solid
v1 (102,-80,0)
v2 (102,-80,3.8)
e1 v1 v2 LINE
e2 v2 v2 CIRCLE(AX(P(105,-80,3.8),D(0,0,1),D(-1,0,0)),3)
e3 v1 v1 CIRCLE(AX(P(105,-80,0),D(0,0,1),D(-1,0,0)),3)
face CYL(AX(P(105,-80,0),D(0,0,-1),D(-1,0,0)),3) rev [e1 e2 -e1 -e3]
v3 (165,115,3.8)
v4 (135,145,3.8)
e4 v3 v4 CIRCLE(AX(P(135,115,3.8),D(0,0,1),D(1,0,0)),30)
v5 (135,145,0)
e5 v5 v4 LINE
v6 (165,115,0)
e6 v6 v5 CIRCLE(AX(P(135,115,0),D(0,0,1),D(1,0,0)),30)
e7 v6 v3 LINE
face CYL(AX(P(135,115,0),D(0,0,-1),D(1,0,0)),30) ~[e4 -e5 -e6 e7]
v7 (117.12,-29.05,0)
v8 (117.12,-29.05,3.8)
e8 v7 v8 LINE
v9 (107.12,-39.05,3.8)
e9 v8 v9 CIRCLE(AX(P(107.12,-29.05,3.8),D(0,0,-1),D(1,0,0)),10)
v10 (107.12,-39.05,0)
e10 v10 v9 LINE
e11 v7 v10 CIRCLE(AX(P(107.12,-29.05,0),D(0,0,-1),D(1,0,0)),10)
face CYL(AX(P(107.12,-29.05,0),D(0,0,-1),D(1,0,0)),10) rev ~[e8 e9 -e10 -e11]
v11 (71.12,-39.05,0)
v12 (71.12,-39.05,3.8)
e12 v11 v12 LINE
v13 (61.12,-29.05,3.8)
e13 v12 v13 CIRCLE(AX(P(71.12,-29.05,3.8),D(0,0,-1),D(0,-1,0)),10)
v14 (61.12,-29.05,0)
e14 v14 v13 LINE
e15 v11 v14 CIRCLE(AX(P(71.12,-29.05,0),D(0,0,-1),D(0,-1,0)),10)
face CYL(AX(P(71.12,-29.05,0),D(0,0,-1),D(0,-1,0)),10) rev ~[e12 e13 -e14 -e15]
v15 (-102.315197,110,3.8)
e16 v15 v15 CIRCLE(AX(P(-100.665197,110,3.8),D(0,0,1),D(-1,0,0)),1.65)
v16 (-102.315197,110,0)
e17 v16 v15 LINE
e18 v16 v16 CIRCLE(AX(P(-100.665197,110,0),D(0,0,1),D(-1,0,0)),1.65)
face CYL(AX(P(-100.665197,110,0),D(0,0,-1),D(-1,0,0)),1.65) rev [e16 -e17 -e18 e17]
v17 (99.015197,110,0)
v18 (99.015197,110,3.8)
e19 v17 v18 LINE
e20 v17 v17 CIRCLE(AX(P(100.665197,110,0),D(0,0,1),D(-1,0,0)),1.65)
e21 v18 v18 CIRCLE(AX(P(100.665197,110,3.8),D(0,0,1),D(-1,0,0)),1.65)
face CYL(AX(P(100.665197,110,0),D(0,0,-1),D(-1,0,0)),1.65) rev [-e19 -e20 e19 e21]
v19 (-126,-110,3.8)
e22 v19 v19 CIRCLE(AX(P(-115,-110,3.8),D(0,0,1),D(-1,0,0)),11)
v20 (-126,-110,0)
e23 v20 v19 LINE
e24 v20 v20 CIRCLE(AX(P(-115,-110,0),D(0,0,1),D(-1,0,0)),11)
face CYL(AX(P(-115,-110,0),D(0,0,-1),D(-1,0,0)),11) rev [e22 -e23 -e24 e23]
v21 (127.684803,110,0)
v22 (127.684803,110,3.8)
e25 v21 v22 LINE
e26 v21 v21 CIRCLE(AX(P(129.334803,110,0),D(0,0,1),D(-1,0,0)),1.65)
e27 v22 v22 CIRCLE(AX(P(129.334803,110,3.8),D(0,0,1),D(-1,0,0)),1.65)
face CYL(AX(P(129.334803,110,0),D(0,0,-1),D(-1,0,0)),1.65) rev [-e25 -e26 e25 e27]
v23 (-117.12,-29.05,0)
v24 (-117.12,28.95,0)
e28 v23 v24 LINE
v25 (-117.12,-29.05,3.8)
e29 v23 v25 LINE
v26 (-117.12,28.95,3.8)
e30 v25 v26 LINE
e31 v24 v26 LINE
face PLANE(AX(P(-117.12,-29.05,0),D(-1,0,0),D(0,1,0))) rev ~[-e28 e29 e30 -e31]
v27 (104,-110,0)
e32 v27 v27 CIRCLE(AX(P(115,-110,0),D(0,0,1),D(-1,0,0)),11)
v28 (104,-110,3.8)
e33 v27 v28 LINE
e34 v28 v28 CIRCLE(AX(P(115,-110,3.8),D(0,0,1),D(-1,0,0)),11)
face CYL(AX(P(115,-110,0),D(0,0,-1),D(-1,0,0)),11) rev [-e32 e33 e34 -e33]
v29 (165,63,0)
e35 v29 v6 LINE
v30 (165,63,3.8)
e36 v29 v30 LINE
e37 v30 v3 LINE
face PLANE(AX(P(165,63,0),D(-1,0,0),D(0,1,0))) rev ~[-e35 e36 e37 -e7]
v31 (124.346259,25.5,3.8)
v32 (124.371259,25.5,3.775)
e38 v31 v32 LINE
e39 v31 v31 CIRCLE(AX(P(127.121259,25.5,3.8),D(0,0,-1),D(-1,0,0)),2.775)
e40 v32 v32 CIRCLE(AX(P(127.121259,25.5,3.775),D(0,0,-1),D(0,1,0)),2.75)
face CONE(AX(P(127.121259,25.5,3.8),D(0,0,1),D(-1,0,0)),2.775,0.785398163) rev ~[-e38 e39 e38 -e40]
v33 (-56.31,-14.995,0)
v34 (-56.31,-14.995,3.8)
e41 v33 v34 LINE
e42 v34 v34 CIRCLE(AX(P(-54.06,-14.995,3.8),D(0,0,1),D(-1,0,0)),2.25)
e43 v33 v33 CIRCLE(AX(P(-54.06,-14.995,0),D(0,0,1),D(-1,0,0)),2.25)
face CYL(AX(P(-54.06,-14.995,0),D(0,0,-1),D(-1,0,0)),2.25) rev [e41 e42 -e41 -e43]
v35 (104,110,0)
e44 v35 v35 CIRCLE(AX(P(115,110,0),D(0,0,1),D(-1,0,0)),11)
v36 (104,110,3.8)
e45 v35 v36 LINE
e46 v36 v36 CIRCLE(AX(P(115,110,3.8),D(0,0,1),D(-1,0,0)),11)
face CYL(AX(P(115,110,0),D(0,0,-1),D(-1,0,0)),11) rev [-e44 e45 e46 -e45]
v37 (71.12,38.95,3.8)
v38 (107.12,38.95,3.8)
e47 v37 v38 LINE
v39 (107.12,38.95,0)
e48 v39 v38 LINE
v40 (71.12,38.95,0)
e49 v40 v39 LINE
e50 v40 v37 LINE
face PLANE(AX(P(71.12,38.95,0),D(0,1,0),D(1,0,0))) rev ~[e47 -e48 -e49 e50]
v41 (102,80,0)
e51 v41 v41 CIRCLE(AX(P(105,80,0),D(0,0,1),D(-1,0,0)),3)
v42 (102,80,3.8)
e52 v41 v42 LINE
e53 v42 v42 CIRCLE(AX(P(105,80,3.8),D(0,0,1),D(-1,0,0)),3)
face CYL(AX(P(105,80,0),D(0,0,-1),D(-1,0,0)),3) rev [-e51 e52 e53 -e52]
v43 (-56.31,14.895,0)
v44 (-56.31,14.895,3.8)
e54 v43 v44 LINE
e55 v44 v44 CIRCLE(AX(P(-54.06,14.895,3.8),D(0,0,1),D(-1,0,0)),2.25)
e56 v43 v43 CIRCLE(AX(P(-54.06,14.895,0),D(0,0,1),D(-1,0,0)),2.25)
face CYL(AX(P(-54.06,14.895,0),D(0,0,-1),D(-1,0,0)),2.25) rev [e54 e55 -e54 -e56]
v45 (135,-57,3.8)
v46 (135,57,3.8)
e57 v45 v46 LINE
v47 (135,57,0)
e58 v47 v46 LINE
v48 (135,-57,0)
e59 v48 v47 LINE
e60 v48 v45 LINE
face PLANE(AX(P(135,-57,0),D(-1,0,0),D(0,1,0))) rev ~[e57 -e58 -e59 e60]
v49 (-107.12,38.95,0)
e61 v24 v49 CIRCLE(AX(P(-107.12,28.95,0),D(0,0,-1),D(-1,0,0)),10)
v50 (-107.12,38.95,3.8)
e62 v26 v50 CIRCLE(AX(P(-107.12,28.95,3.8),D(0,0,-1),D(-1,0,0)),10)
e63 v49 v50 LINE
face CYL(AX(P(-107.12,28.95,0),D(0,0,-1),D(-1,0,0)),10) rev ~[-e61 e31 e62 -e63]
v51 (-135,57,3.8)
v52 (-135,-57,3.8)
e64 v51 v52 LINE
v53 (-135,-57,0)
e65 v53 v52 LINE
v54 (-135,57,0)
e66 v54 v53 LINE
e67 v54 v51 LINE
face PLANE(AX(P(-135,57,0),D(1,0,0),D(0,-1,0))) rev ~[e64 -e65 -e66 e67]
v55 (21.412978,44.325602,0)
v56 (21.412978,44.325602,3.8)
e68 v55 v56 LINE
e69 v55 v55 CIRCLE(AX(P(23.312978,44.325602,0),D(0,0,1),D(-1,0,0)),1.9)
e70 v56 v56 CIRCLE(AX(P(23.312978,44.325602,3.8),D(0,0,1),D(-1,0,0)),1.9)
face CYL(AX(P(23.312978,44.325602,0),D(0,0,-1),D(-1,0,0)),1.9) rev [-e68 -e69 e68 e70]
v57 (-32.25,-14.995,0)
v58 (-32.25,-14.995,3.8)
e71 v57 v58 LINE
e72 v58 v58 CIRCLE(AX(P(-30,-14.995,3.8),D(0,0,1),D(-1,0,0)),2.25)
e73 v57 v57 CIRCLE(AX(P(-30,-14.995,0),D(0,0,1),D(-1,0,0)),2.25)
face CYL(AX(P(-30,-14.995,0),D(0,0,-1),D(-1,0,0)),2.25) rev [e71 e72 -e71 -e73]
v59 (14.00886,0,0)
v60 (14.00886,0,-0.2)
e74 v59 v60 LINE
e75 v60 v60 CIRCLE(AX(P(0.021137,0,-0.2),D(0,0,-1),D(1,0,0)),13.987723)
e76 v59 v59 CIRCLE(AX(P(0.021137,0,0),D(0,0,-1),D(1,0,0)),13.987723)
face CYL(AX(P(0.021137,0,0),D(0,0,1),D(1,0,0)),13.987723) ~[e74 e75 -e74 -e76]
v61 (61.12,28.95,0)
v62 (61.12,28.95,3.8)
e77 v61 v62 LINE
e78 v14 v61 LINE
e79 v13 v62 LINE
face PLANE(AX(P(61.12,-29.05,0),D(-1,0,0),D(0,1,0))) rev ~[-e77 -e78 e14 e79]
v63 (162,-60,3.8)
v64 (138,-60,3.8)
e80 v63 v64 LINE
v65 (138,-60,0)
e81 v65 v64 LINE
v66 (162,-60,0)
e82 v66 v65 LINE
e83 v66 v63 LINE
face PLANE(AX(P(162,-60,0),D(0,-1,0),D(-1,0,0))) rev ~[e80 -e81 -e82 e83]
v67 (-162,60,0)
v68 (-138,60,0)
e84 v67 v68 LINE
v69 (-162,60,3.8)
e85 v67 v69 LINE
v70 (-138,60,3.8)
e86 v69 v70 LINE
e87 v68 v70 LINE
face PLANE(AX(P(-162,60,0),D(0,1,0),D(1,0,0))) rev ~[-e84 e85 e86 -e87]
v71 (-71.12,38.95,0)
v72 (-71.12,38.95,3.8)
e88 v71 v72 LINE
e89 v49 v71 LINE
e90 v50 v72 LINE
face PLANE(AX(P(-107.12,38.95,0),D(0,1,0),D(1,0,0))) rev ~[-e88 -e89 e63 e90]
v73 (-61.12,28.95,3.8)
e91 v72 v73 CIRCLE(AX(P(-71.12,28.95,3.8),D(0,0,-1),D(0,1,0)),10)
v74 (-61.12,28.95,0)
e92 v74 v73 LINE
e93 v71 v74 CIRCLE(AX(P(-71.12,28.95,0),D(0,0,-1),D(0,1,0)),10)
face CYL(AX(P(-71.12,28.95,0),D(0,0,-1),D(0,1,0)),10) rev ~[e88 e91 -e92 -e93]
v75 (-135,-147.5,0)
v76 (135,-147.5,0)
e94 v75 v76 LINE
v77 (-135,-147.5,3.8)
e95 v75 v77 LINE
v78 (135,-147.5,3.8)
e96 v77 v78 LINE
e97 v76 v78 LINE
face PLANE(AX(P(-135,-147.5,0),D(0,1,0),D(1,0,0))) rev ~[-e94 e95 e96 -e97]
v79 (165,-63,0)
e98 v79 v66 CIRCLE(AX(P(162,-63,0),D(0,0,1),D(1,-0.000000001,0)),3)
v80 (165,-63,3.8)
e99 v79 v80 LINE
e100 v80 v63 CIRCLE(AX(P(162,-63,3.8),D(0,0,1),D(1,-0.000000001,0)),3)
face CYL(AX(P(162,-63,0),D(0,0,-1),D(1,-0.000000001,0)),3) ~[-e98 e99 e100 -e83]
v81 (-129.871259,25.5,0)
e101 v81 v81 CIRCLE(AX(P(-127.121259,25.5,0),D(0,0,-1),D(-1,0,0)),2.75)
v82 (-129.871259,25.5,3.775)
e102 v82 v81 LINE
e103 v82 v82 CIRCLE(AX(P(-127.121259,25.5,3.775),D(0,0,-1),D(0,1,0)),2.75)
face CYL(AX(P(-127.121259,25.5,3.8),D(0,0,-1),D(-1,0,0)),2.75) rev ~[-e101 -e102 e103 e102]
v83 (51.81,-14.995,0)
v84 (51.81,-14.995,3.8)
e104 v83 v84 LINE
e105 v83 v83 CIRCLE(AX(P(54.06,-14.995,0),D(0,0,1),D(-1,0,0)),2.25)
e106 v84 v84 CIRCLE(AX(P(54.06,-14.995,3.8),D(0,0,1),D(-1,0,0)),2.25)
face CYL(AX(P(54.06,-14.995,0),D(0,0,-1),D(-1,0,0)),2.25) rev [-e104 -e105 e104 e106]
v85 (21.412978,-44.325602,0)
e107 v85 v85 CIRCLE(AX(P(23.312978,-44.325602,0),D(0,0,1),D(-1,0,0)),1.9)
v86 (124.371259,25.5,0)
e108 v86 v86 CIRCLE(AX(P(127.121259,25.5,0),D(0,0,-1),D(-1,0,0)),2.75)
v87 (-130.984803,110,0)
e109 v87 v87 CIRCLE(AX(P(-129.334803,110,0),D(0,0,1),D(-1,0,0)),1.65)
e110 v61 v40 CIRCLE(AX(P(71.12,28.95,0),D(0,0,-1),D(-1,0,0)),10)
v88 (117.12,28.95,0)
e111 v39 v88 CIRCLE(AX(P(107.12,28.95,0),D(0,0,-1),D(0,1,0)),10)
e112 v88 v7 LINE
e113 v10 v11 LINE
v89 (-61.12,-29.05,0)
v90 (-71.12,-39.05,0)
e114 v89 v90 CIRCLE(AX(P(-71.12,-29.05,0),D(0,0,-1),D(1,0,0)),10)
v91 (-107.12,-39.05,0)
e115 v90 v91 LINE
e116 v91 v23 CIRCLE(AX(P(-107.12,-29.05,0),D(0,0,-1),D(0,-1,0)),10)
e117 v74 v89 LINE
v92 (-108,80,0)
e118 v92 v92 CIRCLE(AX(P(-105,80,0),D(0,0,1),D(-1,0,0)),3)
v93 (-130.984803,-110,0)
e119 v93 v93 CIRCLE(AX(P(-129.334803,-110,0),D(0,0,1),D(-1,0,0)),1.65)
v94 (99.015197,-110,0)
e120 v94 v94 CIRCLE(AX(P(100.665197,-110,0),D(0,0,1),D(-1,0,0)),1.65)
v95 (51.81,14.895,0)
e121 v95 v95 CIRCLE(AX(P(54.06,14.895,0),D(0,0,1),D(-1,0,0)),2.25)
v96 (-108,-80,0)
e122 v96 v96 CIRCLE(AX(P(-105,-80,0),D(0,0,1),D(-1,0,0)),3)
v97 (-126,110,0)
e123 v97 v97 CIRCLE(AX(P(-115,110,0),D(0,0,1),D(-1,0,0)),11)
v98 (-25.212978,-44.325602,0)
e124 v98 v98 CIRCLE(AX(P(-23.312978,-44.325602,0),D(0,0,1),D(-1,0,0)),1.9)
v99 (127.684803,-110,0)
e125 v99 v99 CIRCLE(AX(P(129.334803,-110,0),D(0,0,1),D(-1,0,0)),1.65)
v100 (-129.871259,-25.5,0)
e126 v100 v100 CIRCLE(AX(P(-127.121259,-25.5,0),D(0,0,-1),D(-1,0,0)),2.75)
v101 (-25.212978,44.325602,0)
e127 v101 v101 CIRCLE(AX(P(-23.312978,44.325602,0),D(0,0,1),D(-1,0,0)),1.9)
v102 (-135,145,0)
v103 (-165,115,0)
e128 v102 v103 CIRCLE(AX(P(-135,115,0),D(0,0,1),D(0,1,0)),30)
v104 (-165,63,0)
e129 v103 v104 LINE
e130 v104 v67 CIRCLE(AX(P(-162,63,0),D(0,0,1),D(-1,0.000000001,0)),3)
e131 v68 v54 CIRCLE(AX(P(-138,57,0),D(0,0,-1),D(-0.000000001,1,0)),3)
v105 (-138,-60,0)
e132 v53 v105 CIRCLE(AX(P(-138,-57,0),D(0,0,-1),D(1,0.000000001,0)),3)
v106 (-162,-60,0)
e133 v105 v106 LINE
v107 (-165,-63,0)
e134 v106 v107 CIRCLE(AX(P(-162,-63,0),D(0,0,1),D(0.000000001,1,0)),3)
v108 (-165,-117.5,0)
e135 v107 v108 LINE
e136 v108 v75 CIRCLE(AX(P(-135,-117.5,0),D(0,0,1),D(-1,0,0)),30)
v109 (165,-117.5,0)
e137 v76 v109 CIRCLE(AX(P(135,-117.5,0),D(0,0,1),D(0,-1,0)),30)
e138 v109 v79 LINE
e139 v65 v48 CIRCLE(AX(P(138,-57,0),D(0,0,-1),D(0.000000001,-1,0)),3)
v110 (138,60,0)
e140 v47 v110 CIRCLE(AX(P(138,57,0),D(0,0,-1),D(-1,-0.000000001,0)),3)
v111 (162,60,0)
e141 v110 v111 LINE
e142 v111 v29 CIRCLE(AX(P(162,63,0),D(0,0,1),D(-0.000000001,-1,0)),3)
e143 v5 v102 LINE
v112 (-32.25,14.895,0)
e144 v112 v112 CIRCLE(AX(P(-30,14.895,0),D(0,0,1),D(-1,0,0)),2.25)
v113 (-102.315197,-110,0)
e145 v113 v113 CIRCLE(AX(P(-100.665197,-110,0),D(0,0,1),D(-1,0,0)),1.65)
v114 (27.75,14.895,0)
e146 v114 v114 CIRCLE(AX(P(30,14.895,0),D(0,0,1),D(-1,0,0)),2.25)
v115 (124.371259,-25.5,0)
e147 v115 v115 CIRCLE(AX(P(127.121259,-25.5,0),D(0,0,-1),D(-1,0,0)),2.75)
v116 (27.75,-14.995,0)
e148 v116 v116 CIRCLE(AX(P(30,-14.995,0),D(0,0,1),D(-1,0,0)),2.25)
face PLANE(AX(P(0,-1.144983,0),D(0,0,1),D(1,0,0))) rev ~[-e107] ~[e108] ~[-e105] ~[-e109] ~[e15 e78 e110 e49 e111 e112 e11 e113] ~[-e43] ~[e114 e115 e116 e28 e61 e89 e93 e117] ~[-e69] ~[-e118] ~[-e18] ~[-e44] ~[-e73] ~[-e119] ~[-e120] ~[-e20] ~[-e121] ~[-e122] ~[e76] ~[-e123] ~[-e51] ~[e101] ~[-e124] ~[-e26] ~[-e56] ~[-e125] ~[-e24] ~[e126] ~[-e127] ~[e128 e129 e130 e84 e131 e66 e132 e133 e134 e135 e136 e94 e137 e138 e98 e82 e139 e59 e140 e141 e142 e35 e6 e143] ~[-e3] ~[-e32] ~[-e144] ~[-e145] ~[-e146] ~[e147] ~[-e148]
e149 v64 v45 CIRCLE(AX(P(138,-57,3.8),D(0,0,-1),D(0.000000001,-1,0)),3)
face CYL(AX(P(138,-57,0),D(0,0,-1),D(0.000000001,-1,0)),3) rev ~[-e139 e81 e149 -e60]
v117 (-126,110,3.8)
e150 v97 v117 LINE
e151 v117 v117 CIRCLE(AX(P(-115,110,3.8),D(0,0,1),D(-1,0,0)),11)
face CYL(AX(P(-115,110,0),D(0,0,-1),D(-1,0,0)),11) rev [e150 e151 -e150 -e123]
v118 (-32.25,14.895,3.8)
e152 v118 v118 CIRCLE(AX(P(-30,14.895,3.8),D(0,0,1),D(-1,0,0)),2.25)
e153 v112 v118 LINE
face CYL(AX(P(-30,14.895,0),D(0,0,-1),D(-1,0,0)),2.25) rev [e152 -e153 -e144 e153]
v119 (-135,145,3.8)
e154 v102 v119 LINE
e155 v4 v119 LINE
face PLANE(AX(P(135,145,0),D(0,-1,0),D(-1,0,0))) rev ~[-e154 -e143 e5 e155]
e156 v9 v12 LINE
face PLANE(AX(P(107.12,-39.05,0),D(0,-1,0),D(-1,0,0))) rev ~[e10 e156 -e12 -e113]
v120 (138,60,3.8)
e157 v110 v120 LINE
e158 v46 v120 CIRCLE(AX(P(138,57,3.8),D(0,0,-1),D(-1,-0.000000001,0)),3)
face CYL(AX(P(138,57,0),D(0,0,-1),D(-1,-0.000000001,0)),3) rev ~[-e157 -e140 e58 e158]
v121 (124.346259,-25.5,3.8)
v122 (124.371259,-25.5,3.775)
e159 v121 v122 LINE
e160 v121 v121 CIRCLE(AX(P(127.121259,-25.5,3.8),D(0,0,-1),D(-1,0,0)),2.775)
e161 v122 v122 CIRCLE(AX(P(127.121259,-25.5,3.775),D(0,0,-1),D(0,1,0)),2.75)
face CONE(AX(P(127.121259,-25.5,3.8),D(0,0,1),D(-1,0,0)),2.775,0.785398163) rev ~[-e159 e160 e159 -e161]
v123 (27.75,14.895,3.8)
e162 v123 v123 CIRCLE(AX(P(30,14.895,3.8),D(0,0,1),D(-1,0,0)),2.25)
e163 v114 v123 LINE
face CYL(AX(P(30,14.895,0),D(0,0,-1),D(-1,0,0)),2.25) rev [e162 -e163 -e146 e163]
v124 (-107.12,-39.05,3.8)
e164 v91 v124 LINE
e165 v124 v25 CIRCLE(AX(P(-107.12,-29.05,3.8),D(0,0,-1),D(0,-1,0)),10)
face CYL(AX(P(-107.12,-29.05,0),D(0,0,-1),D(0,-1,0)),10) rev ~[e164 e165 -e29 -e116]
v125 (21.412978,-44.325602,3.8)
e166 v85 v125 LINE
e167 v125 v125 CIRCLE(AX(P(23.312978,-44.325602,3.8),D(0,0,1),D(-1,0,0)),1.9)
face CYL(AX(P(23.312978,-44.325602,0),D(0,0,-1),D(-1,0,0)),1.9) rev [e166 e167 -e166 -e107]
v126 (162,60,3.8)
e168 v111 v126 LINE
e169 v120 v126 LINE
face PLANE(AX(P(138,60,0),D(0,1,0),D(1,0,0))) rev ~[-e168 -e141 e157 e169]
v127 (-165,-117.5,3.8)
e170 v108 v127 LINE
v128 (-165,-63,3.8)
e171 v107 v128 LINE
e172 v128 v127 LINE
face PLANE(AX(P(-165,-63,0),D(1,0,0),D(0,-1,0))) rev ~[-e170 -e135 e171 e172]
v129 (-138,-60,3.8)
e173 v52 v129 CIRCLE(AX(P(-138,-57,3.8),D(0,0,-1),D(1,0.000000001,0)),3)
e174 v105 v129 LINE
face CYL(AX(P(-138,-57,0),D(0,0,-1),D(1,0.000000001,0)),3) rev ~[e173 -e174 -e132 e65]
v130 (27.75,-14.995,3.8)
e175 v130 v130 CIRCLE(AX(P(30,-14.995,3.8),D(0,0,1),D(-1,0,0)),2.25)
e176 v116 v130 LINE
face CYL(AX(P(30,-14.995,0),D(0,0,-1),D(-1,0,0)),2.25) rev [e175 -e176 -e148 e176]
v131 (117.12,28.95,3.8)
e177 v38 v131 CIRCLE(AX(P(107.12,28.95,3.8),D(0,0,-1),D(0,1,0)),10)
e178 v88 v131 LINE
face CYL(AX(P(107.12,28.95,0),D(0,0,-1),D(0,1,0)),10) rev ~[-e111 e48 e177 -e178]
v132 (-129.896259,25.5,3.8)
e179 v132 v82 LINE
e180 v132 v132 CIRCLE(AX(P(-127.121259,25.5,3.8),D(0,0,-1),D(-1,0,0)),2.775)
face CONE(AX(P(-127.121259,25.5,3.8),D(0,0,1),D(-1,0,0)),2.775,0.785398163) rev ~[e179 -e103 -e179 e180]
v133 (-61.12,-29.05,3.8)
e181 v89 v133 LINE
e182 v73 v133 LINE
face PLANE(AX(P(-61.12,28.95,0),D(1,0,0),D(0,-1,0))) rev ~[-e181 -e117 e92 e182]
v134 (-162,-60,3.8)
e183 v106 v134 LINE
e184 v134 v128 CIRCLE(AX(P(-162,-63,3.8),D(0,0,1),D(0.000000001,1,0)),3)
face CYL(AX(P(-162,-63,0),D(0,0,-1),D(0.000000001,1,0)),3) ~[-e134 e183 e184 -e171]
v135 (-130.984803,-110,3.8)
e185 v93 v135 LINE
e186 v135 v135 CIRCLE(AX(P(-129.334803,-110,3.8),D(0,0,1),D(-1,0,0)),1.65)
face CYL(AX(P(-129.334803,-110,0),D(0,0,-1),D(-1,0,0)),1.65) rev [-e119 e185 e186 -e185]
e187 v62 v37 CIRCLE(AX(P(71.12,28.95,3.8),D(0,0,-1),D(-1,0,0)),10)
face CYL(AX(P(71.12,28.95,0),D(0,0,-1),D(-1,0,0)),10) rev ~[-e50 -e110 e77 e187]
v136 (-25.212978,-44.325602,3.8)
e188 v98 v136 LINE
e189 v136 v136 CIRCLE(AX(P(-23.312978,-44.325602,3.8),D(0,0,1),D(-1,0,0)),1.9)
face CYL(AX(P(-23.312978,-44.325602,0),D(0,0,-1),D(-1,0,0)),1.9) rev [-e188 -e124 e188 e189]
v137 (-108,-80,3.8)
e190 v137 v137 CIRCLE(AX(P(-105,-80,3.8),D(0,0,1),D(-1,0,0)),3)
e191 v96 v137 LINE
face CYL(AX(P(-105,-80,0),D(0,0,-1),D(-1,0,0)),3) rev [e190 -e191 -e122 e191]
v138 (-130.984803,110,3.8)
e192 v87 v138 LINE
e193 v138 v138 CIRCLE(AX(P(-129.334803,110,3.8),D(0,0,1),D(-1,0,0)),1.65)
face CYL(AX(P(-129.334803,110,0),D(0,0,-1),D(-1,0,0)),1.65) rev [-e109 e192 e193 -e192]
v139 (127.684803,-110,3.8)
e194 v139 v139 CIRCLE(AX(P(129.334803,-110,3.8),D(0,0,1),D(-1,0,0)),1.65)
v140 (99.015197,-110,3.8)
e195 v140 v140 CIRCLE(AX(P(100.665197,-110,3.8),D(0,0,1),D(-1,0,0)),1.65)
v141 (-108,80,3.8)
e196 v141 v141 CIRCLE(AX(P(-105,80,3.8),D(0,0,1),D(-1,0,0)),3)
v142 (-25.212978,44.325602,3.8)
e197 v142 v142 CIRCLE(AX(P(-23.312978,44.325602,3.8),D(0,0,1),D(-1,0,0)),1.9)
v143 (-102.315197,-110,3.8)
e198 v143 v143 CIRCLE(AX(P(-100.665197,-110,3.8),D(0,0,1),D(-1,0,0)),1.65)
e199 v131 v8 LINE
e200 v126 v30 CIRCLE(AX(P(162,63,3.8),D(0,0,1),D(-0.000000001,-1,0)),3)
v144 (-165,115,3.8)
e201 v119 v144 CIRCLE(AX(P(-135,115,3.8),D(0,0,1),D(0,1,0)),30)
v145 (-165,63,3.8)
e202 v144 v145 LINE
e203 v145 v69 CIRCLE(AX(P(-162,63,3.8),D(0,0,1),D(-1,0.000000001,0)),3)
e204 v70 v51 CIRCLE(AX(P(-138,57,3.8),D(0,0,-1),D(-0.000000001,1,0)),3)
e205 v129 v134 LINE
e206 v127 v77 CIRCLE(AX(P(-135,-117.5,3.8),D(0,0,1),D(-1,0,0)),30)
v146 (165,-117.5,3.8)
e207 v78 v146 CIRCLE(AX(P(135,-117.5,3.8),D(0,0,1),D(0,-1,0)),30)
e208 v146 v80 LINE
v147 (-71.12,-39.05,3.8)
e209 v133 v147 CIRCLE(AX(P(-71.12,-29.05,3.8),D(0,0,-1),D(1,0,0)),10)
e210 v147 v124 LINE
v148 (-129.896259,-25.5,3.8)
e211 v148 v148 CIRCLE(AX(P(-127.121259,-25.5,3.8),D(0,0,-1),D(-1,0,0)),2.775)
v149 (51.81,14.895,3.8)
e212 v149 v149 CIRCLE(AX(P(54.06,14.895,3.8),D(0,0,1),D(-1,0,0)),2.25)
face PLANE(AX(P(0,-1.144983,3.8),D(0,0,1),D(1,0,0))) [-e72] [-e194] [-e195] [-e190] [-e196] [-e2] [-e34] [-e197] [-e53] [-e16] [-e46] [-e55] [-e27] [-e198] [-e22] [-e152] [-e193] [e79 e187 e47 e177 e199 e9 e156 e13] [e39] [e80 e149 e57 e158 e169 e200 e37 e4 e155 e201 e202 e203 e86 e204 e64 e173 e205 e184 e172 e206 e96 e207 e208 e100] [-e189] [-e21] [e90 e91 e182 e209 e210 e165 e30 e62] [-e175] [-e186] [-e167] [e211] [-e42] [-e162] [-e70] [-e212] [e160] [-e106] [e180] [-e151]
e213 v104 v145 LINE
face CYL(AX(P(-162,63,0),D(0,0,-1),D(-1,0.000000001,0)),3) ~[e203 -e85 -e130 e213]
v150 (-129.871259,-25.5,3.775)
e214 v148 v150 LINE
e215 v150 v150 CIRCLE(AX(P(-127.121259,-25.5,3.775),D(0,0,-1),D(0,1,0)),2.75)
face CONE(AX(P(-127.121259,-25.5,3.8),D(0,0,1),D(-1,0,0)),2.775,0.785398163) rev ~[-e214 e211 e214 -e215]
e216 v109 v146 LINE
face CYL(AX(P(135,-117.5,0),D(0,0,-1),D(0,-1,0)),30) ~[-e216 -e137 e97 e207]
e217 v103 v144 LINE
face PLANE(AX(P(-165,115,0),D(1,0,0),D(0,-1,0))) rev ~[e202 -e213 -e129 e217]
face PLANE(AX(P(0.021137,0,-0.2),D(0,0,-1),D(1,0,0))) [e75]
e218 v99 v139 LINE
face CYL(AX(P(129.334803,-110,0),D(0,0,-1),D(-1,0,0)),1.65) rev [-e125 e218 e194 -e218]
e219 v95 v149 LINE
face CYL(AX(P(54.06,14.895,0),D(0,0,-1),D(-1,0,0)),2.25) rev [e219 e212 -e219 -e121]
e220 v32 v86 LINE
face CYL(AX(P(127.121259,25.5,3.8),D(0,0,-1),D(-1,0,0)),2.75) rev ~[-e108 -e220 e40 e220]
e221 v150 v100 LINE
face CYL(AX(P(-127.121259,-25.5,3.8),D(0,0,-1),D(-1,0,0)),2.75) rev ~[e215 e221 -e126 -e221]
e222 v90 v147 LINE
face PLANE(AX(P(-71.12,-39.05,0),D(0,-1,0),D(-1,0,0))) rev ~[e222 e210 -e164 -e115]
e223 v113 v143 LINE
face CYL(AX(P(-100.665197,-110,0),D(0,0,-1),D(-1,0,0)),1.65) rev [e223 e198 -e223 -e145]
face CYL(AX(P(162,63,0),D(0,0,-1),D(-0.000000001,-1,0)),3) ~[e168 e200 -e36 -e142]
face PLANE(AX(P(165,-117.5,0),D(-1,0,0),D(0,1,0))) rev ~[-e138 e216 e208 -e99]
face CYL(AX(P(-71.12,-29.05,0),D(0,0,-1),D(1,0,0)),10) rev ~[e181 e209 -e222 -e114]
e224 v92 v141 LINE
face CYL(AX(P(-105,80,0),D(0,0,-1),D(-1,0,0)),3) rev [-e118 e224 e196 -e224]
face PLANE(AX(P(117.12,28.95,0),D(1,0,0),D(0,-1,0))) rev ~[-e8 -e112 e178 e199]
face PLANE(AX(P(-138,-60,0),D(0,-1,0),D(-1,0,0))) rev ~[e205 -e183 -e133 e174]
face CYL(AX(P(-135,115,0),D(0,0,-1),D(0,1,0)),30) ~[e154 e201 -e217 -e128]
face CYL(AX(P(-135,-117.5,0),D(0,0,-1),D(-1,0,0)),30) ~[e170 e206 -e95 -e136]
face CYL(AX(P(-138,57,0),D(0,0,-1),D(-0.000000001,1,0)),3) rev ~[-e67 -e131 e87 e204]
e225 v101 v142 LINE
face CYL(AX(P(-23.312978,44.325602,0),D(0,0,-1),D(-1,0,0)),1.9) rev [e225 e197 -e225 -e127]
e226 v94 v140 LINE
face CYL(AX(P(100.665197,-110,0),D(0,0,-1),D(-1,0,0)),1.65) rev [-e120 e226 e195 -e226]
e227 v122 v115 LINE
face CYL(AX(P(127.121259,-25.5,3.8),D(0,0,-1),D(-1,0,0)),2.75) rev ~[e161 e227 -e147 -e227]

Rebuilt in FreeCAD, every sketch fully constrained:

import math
import FreeCAD as App
import Part
import Sketcher
from FreeCAD import Vector
Q = App.Units.Quantity

doc = App.newDocument("Part")
body = doc.addObject("PartDesign::Body", "Body")

# Sketch on XY plane
sketch1 = body.newObject("Sketcher::SketchObject", "Sketch")
sketch1.AttachmentSupport = (doc.getObject("XY_Plane"), [""])
sketch1.MapMode = "FlatFace"
sketch1.addGeometry(Part.LineSegment(Vector(165, 63, 0), Vector(165, 115, 0)), False)
sketch1.addGeometry(Part.ArcOfCircle(Part.Circle(Vector(135, 115, 0), Vector(0, 0, 1), 30), math.radians(0), math.radians(90)), False)
sketch1.addGeometry(Part.LineSegment(Vector(135, 145, 0), Vector(-135, 145, 0)), False)
sketch1.addGeometry(Part.ArcOfCircle(Part.Circle(Vector(-135, 115, 0), Vector(0, 0, 1), 30), math.radians(90), math.radians(180)), False)
sketch1.addGeometry(Part.LineSegment(Vector(-165, 115, 0), Vector(-165, 63, 0)), False)
sketch1.addGeometry(Part.ArcOfCircle(Part.Circle(Vector(-162, 63, 0), Vector(0, 0, 1), 3), math.radians(180), math.radians(270)), False)
sketch1.addGeometry(Part.LineSegment(Vector(-162, 60, 0), Vector(-138, 60, 0)), False)
sketch1.addGeometry(Part.ArcOfCircle(Part.Circle(Vector(-138, 57, 0), Vector(0, 0, 1), 3), math.radians(0), math.radians(90)), False)
sketch1.addGeometry(Part.LineSegment(Vector(-135, 57, 0), Vector(-135, -57, 0)), False)
sketch1.addGeometry(Part.ArcOfCircle(Part.Circle(Vector(-138, -57, 0), Vector(0, 0, 1), 3), math.radians(-90), math.radians(0)), False)
sketch1.addGeometry(Part.LineSegment(Vector(-138, -60, 0), Vector(-162, -60, 0)), False)
sketch1.addGeometry(Part.ArcOfCircle(Part.Circle(Vector(-162, -63, 0), Vector(0, 0, 1), 3), math.radians(90), math.radians(180)), False)
sketch1.addGeometry(Part.LineSegment(Vector(-165, -63, 0), Vector(-165, -117.5, 0)), False)
sketch1.addGeometry(Part.ArcOfCircle(Part.Circle(Vector(-135, -117.5, 0), Vector(0, 0, 1), 30), math.radians(180), math.radians(270)), False)
sketch1.addGeometry(Part.LineSegment(Vector(-135, -147.5, 0), Vector(135, -147.5, 0)), False)
sketch1.addGeometry(Part.ArcOfCircle(Part.Circle(Vector(135, -117.5, 0), Vector(0, 0, 1), 30), math.radians(-90), math.radians(0)), False)
sketch1.addGeometry(Part.LineSegment(Vector(165, -117.5, 0), Vector(165, -63, 0)), False)
sketch1.addGeometry(Part.ArcOfCircle(Part.Circle(Vector(162, -63, 0), Vector(0, 0, 1), 3), math.radians(0), math.radians(90)), False)
sketch1.addGeometry(Part.LineSegment(Vector(162, -60, 0), Vector(138, -60, 0)), False)
sketch1.addGeometry(Part.ArcOfCircle(Part.Circle(Vector(138, -57, 0), Vector(0, 0, 1), 3), math.radians(180), math.radians(270)), False)
sketch1.addGeometry(Part.LineSegment(Vector(135, -57, 0), Vector(135, 57, 0)), False)
sketch1.addGeometry(Part.ArcOfCircle(Part.Circle(Vector(138, 57, 0), Vector(0, 0, 1), 3), math.radians(90), math.radians(180)), False)
sketch1.addGeometry(Part.LineSegment(Vector(138, 60, 0), Vector(162, 60, 0)), False)
sketch1.addGeometry(Part.ArcOfCircle(Part.Circle(Vector(162, 63, 0), Vector(0, 0, 1), 3), math.radians(-90), math.radians(0)), False)
sketch1.addGeometry(Part.Circle(Vector(-129.334803, -110, 0), Vector(0, 0, 1), 1.65), False)
sketch1.addGeometry(Part.Circle(Vector(-115, -110, 0), Vector(0, 0, 1), 11), False)
sketch1.addGeometry(Part.Circle(Vector(-100.665197, -110, 0), Vector(0, 0, 1), 1.65), False)
sketch1.addGeometry(Part.Circle(Vector(-105, -80, 0), Vector(0, 0, 1), 3), False)
sketch1.addGeometry(Part.Circle(Vector(-127.121259, -25.5, 0), Vector(0, 0, 1), 1.65), False)
sketch1.addGeometry(Part.LineSegment(Vector(-117.12, -29.05, 0), Vector(-117.12, 28.95, 0)), False)
sketch1.addGeometry(Part.ArcOfCircle(Part.Circle(Vector(-107.12, 28.95, 0), Vector(0, 0, 1), 10), math.radians(90), math.radians(180)), False)
sketch1.addGeometry(Part.LineSegment(Vector(-107.12, 38.95, 0), Vector(-71.12, 38.95, 0)), False)
sketch1.addGeometry(Part.ArcOfCircle(Part.Circle(Vector(-71.12, 28.95, 0), Vector(0, 0, 1), 10), math.radians(0), math.radians(90)), False)
sketch1.addGeometry(Part.LineSegment(Vector(-61.12, 28.95, 0), Vector(-61.12, -29.05, 0)), False)
sketch1.addGeometry(Part.ArcOfCircle(Part.Circle(Vector(-71.12, -29.05, 0), Vector(0, 0, 1), 10), math.radians(-90), math.radians(0)), False)
sketch1.addGeometry(Part.LineSegment(Vector(-71.12, -39.05, 0), Vector(-107.12, -39.05, 0)), False)
sketch1.addGeometry(Part.ArcOfCircle(Part.Circle(Vector(-107.12, -29.05, 0), Vector(0, 0, 1), 10), math.radians(180), math.radians(270)), False)
sketch1.addGeometry(Part.Circle(Vector(-23.312978, -44.325602, 0), Vector(0, 0, 1), 1.9), False)
sketch1.addGeometry(Part.Circle(Vector(-54.06, -14.995, 0), Vector(0, 0, 1), 2.25), False)
sketch1.addGeometry(Part.Circle(Vector(-30, -14.995, 0), Vector(0, 0, 1), 2.25), False)
sketch1.addGeometry(Part.Circle(Vector(100.665197, -110, 0), Vector(0, 0, 1), 1.65), False)
sketch1.addGeometry(Part.Circle(Vector(115, -110, 0), Vector(0, 0, 1), 11), False)
sketch1.addGeometry(Part.Circle(Vector(129.334803, -110, 0), Vector(0, 0, 1), 1.65), False)
sketch1.addGeometry(Part.Circle(Vector(105, -80, 0), Vector(0, 0, 1), 3), False)
sketch1.addGeometry(Part.Circle(Vector(23.312978, -44.325602, 0), Vector(0, 0, 1), 1.9), False)
sketch1.addGeometry(Part.Circle(Vector(30, -14.995, 0), Vector(0, 0, 1), 2.25), False)
sketch1.addGeometry(Part.Circle(Vector(54.06, -14.995, 0), Vector(0, 0, 1), 2.25), False)
sketch1.addGeometry(Part.ArcOfCircle(Part.Circle(Vector(71.12, -29.05, 0), Vector(0, 0, 1), 10), math.radians(180), math.radians(270)), False)
sketch1.addGeometry(Part.LineSegment(Vector(61.12, -29.05, 0), Vector(61.12, 28.95, 0)), False)
sketch1.addGeometry(Part.ArcOfCircle(Part.Circle(Vector(71.12, 28.95, 0), Vector(0, 0, 1), 10), math.radians(90), math.radians(180)), False)
sketch1.addGeometry(Part.LineSegment(Vector(71.12, 38.95, 0), Vector(107.12, 38.95, 0)), False)
sketch1.addGeometry(Part.ArcOfCircle(Part.Circle(Vector(107.12, 28.95, 0), Vector(0, 0, 1), 10), math.radians(0), math.radians(90)), False)
sketch1.addGeometry(Part.LineSegment(Vector(117.12, 28.95, 0), Vector(117.12, -29.05, 0)), False)
sketch1.addGeometry(Part.ArcOfCircle(Part.Circle(Vector(107.12, -29.05, 0), Vector(0, 0, 1), 10), math.radians(-90), math.radians(0)), False)
sketch1.addGeometry(Part.LineSegment(Vector(107.12, -39.05, 0), Vector(71.12, -39.05, 0)), False)
sketch1.addGeometry(Part.Circle(Vector(127.121259, -25.5, 0), Vector(0, 0, 1), 1.65), False)
sketch1.addGeometry(Part.Circle(Vector(-127.121259, 25.5, 0), Vector(0, 0, 1), 1.65), False)
sketch1.addGeometry(Part.Circle(Vector(-54.06, 14.895, 0), Vector(0, 0, 1), 2.25), False)
sketch1.addGeometry(Part.Circle(Vector(-30, 14.895, 0), Vector(0, 0, 1), 2.25), False)
sketch1.addGeometry(Part.Circle(Vector(-23.312978, 44.325602, 0), Vector(0, 0, 1), 1.9), False)
sketch1.addGeometry(Part.Circle(Vector(-105, 80, 0), Vector(0, 0, 1), 3), False)
sketch1.addGeometry(Part.Circle(Vector(-129.334803, 110, 0), Vector(0, 0, 1), 1.65), False)
sketch1.addGeometry(Part.Circle(Vector(-115, 110, 0), Vector(0, 0, 1), 11), False)
sketch1.addGeometry(Part.Circle(Vector(-100.665197, 110, 0), Vector(0, 0, 1), 1.65), False)
sketch1.addGeometry(Part.Circle(Vector(30, 14.895, 0), Vector(0, 0, 1), 2.25), False)
sketch1.addGeometry(Part.Circle(Vector(54.06, 14.895, 0), Vector(0, 0, 1), 2.25), False)
sketch1.addGeometry(Part.Circle(Vector(23.312978, 44.325602, 0), Vector(0, 0, 1), 1.9), False)
sketch1.addGeometry(Part.Circle(Vector(127.121259, 25.5, 0), Vector(0, 0, 1), 1.65), False)
sketch1.addGeometry(Part.Circle(Vector(105, 80, 0), Vector(0, 0, 1), 3), False)
sketch1.addGeometry(Part.Circle(Vector(100.665197, 110, 0), Vector(0, 0, 1), 1.65), False)
sketch1.addGeometry(Part.Circle(Vector(115, 110, 0), Vector(0, 0, 1), 11), False)
sketch1.addGeometry(Part.Circle(Vector(129.334803, 110, 0), Vector(0, 0, 1), 1.65), False)
sketch1.addConstraint(Sketcher.Constraint("Tangent", 0, 2, 1, 1))
sketch1.addConstraint(Sketcher.Constraint("Tangent", 1, 2, 2, 1))
sketch1.addConstraint(Sketcher.Constraint("Tangent", 2, 2, 3, 1))
sketch1.addConstraint(Sketcher.Constraint("Tangent", 3, 2, 4, 1))
sketch1.addConstraint(Sketcher.Constraint("Tangent", 4, 2, 5, 1))
sketch1.addConstraint(Sketcher.Constraint("Tangent", 5, 2, 6, 1))
sketch1.addConstraint(Sketcher.Constraint("Tangent", 6, 2, 7, 2))
sketch1.addConstraint(Sketcher.Constraint("Tangent", 7, 1, 8, 1))
sketch1.addConstraint(Sketcher.Constraint("Tangent", 8, 2, 9, 2))
sketch1.addConstraint(Sketcher.Constraint("Tangent", 9, 1, 10, 1))
sketch1.addConstraint(Sketcher.Constraint("Tangent", 10, 2, 11, 1))
sketch1.addConstraint(Sketcher.Constraint("Tangent", 11, 2, 12, 1))
sketch1.addConstraint(Sketcher.Constraint("Tangent", 12, 2, 13, 1))
sketch1.addConstraint(Sketcher.Constraint("Tangent", 13, 2, 14, 1))
sketch1.addConstraint(Sketcher.Constraint("Tangent", 14, 2, 15, 1))
sketch1.addConstraint(Sketcher.Constraint("Tangent", 15, 2, 16, 1))
sketch1.addConstraint(Sketcher.Constraint("Tangent", 16, 2, 17, 1))
sketch1.addConstraint(Sketcher.Constraint("Tangent", 17, 2, 18, 1))
sketch1.addConstraint(Sketcher.Constraint("Tangent", 18, 2, 19, 2))
sketch1.addConstraint(Sketcher.Constraint("Tangent", 19, 1, 20, 1))
sketch1.addConstraint(Sketcher.Constraint("Tangent", 20, 2, 21, 2))
sketch1.addConstraint(Sketcher.Constraint("Tangent", 21, 1, 22, 1))
sketch1.addConstraint(Sketcher.Constraint("Tangent", 22, 2, 23, 1))
sketch1.addConstraint(Sketcher.Constraint("Tangent", 23, 2, 0, 1))
sketch1.addConstraint(Sketcher.Constraint("Tangent", 29, 2, 30, 2))
sketch1.addConstraint(Sketcher.Constraint("Tangent", 30, 1, 31, 1))
sketch1.addConstraint(Sketcher.Constraint("Tangent", 31, 2, 32, 2))
sketch1.addConstraint(Sketcher.Constraint("Tangent", 32, 1, 33, 1))
sketch1.addConstraint(Sketcher.Constraint("Tangent", 33, 2, 34, 2))
sketch1.addConstraint(Sketcher.Constraint("Tangent", 34, 1, 35, 1))
sketch1.addConstraint(Sketcher.Constraint("Tangent", 35, 2, 36, 2))
sketch1.addConstraint(Sketcher.Constraint("Tangent", 36, 1, 29, 1))
sketch1.addConstraint(Sketcher.Constraint("Tangent", 47, 1, 48, 1))
sketch1.addConstraint(Sketcher.Constraint("Tangent", 48, 2, 49, 2))
sketch1.addConstraint(Sketcher.Constraint("Tangent", 49, 1, 50, 1))
sketch1.addConstraint(Sketcher.Constraint("Tangent", 50, 2, 51, 2))
sketch1.addConstraint(Sketcher.Constraint("Tangent", 51, 1, 52, 1))
sketch1.addConstraint(Sketcher.Constraint("Tangent", 52, 2, 53, 2))
sketch1.addConstraint(Sketcher.Constraint("Tangent", 53, 1, 54, 1))
sketch1.addConstraint(Sketcher.Constraint("Tangent", 54, 2, 47, 2))
sketch1.addConstraint(Sketcher.Constraint("Vertical", 0))
sketch1.addConstraint(Sketcher.Constraint("Horizontal", 2))
sketch1.addConstraint(Sketcher.Constraint("Vertical", 4))
sketch1.addConstraint(Sketcher.Constraint("Horizontal", 6))
sketch1.addConstraint(Sketcher.Constraint("Vertical", 8))
sketch1.addConstraint(Sketcher.Constraint("Horizontal", 10))
sketch1.addConstraint(Sketcher.Constraint("Vertical", 12))
sketch1.addConstraint(Sketcher.Constraint("Horizontal", 14))
sketch1.addConstraint(Sketcher.Constraint("Vertical", 16))
sketch1.addConstraint(Sketcher.Constraint("Horizontal", 18))
sketch1.addConstraint(Sketcher.Constraint("Vertical", 20))
sketch1.addConstraint(Sketcher.Constraint("Horizontal", 22))
sketch1.addConstraint(Sketcher.Constraint("Vertical", 29))
sketch1.addConstraint(Sketcher.Constraint("Horizontal", 31))
sketch1.addConstraint(Sketcher.Constraint("Vertical", 33))
sketch1.addConstraint(Sketcher.Constraint("Horizontal", 35))
sketch1.addConstraint(Sketcher.Constraint("Vertical", 48))
sketch1.addConstraint(Sketcher.Constraint("Horizontal", 50))
sketch1.addConstraint(Sketcher.Constraint("Vertical", 52))
sketch1.addConstraint(Sketcher.Constraint("Horizontal", 54))
sketch1.addConstraint(Sketcher.Constraint("Equal", 1, 3))
sketch1.addConstraint(Sketcher.Constraint("Equal", 5, 7))
sketch1.addConstraint(Sketcher.Constraint("Equal", 7, 9))
sketch1.addConstraint(Sketcher.Constraint("Equal", 9, 11))
sketch1.addConstraint(Sketcher.Constraint("Equal", 3, 13))
sketch1.addConstraint(Sketcher.Constraint("Equal", 13, 15))
sketch1.addConstraint(Sketcher.Constraint("Equal", 11, 17))
sketch1.addConstraint(Sketcher.Constraint("Equal", 17, 19))
sketch1.addConstraint(Sketcher.Constraint("Equal", 19, 21))
sketch1.addConstraint(Sketcher.Constraint("Equal", 21, 23))
sketch1.addConstraint(Sketcher.Constraint("Equal", 24, 26))
sketch1.addConstraint(Sketcher.Constraint("Equal", 23, 27))
sketch1.addConstraint(Sketcher.Constraint("Equal", 26, 28))
sketch1.addConstraint(Sketcher.Constraint("Equal", 30, 32))
sketch1.addConstraint(Sketcher.Constraint("Equal", 32, 34))
sketch1.addConstraint(Sketcher.Constraint("Equal", 34, 36))
sketch1.addConstraint(Sketcher.Constraint("Equal", 38, 39))
sketch1.addConstraint(Sketcher.Constraint("Equal", 28, 40))
sketch1.addConstraint(Sketcher.Constraint("Equal", 25, 41))
sketch1.addConstraint(Sketcher.Constraint("Equal", 40, 42))
sketch1.addConstraint(Sketcher.Constraint("Equal", 27, 43))
sketch1.addConstraint(Sketcher.Constraint("Equal", 37, 44))
sketch1.addConstraint(Sketcher.Constraint("Equal", 39, 45))
sketch1.addConstraint(Sketcher.Constraint("Equal", 45, 46))
sketch1.addConstraint(Sketcher.Constraint("Equal", 36, 47))
sketch1.addConstraint(Sketcher.Constraint("Equal", 47, 49))
sketch1.addConstraint(Sketcher.Constraint("Equal", 49, 51))
sketch1.addConstraint(Sketcher.Constraint("Equal", 51, 53))
sketch1.addConstraint(Sketcher.Constraint("Equal", 42, 55))
sketch1.addConstraint(Sketcher.Constraint("Equal", 55, 56))
sketch1.addConstraint(Sketcher.Constraint("Equal", 46, 57))
sketch1.addConstraint(Sketcher.Constraint("Equal", 57, 58))
sketch1.addConstraint(Sketcher.Constraint("Equal", 44, 59))
sketch1.addConstraint(Sketcher.Constraint("Equal", 43, 60))
sketch1.addConstraint(Sketcher.Constraint("Equal", 56, 61))
sketch1.addConstraint(Sketcher.Constraint("Equal", 41, 62))
sketch1.addConstraint(Sketcher.Constraint("Equal", 61, 63))
sketch1.addConstraint(Sketcher.Constraint("Equal", 58, 64))
sketch1.addConstraint(Sketcher.Constraint("Equal", 64, 65))
sketch1.addConstraint(Sketcher.Constraint("Equal", 59, 66))
sketch1.addConstraint(Sketcher.Constraint("Equal", 63, 67))
sketch1.addConstraint(Sketcher.Constraint("Equal", 60, 68))
sketch1.addConstraint(Sketcher.Constraint("Equal", 67, 69))
sketch1.addConstraint(Sketcher.Constraint("Equal", 62, 70))
sketch1.addConstraint(Sketcher.Constraint("Equal", 69, 71))
sketch1.addConstraint(Sketcher.Constraint("Symmetric", 5, 3, 17, 3, -1, 1))
sketch1.addConstraint(Sketcher.Constraint("Symmetric", 9, 3, 21, 3, -1, 1))
sketch1.addConstraint(Sketcher.Constraint("Symmetric", 55, 3, 56, 3, -1, 1))
sketch1.addConstraint(Sketcher.Constraint("Symmetric", 44, 3, 59, 3, -1, 1))
sketch1.addConstraint(Sketcher.Constraint("Symmetric", 43, 3, 60, 3, -1, 1))
sketch1.addConstraint(Sketcher.Constraint("Symmetric", 42, 3, 61, 3, -1, 1))
sketch1.addConstraint(Sketcher.Constraint("Symmetric", 41, 3, 62, 3, -1, 1))
sketch1.addConstraint(Sketcher.Constraint("Symmetric", 40, 3, 63, 3, -1, 1))
sketch1.addConstraint(Sketcher.Constraint("Symmetric", 37, 3, 66, 3, -1, 1))
sketch1.addConstraint(Sketcher.Constraint("Symmetric", 28, 3, 67, 3, -1, 1))
sketch1.addConstraint(Sketcher.Constraint("Symmetric", 27, 3, 68, 3, -1, 1))
sketch1.addConstraint(Sketcher.Constraint("Symmetric", 26, 3, 69, 3, -1, 1))
sketch1.addConstraint(Sketcher.Constraint("Symmetric", 25, 3, 70, 3, -1, 1))
sketch1.addConstraint(Sketcher.Constraint("Symmetric", 24, 3, 71, 3, -1, 1))
sketch1.addConstraint(Sketcher.Constraint("Symmetric", 11, 3, 17, 3, -2))
sketch1.addConstraint(Sketcher.Constraint("Symmetric", 26, 3, 40, 3, -2))
sketch1.addConstraint(Sketcher.Constraint("Symmetric", 25, 3, 41, 3, -2))
sketch1.addConstraint(Sketcher.Constraint("Symmetric", 24, 3, 42, 3, -2))
sketch1.addConstraint(Sketcher.Constraint("Symmetric", 27, 3, 43, 3, -2))
sketch1.addConstraint(Sketcher.Constraint("Symmetric", 37, 3, 44, 3, -2))
sketch1.addConstraint(Sketcher.Constraint("Symmetric", 39, 3, 45, 3, -2))
sketch1.addConstraint(Sketcher.Constraint("Symmetric", 38, 3, 46, 3, -2))
sketch1.addConstraint(Sketcher.Constraint("Symmetric", 34, 3, 47, 3, -2))
sketch1.addConstraint(Sketcher.Constraint("Symmetric", 30, 3, 51, 3, -2))
sketch1.addConstraint(Sketcher.Constraint("Symmetric", 28, 3, 55, 3, -2))
sketch1.addConstraint(Sketcher.Constraint("Symmetric", 58, 3, 64, 3, -2))
sketch1.addConstraint(Sketcher.Constraint("Symmetric", 57, 3, 65, 3, -2))
sketch1.addConstraint(Sketcher.Constraint("Horizontal", 24, 3, 25, 3))
sketch1.addConstraint(Sketcher.Constraint("Horizontal", 25, 3, 26, 3))
sketch1.addConstraint(Sketcher.Constraint("Horizontal", 38, 3, 39, 3))
sketch1.addConstraint(Sketcher.Constraint("Horizontal", 57, 3, 58, 3))
sketch1.addConstraint(Sketcher.Constraint("Vertical", 1, 3, 15, 3))
sketch1.addConstraint(Sketcher.Constraint("Vertical", 38, 3, 57, 3))
sketch1.addConstraint(Sketcher.Constraint("Vertical", 39, 3, 58, 3))
sketch1.addConstraint(Sketcher.Constraint("Vertical", 2, 2, 7, 1))
sketch1.addConstraint(Sketcher.Constraint("Diameter", 25, Q("22 mm")))
sketch1.addConstraint(Sketcher.Constraint("Diameter", 27, Q("6 mm")))
sketch1.addConstraint(Sketcher.Constraint("Radius", 1, Q("30 mm")))
sketch1.addConstraint(Sketcher.Constraint("Radius", 30, Q("10 mm")))
sketch1.addConstraint(Sketcher.Constraint("Diameter", 24, Q("3.3 mm")))
sketch1.addConstraint(Sketcher.Constraint("Diameter", 37, Q("3.8 mm")))
sketch1.addConstraint(Sketcher.Constraint("Diameter", 38, Q("4.5 mm")))
sketch1.addConstraint(Sketcher.Constraint("DistanceX", 2, 2, 2, 1, Q("270 mm")))
sketch1.addConstraint(Sketcher.Constraint("DistanceX", 31, 1, 31, 2, Q("36 mm")))
sketch1.addConstraint(Sketcher.Constraint("DistanceY", 0, 1, 0, 2, Q("52 mm")))
sketch1.addConstraint(Sketcher.Constraint("DistanceY", 8, 2, 8, 1, Q("114 mm")))
sketch1.addConstraint(Sketcher.Constraint("DistanceY", 29, 1, 29, 2, Q("58 mm")))
sketch1.addConstraint(Sketcher.Constraint("DistanceY", 12, 2, 12, 1, Q("54.5 mm")))
sketch1.addConstraint(Sketcher.Constraint("DistanceY", 24, 3, -1, 1, Q("110 mm")))
sketch1.addConstraint(Sketcher.Constraint("DistanceX", 25, 3, -1, 1, Q("115 mm")))
sketch1.addConstraint(Sketcher.Constraint("DistanceX", 27, 3, -1, 1, Q("105 mm")))
sketch1.addConstraint(Sketcher.Constraint("DistanceY", 27, 3, -1, 1, Q("80 mm")))
sketch1.addConstraint(Sketcher.Constraint("DistanceX", 39, 3, -1, 1, Q("30 mm")))
sketch1.addConstraint(Sketcher.Constraint("DistanceY", 28, 3, -1, 1, Q("25.5 mm")))
sketch1.addConstraint(Sketcher.Constraint("DistanceX", 30, 3, -1, 1, Q("107.12 mm")))
sketch1.addConstraint(Sketcher.Constraint("DistanceY", -1, 1, 30, 3, Q("28.95 mm")))
sketch1.addConstraint(Sketcher.Constraint("DistanceX", 38, 3, -1, 1, Q("54.06 mm")))
sketch1.addConstraint(Sketcher.Constraint("DistanceY", 38, 3, -1, 1, Q("14.995 mm")))
sketch1.addConstraint(Sketcher.Constraint("DistanceY", -1, 1, 57, 3, Q("14.895 mm")))
sketch1.addConstraint(Sketcher.Constraint("DistanceY", 37, 3, -1, 1, Q("44.325602 mm")))
sketch1.addConstraint(Sketcher.Constraint("DistanceX", 28, 3, -1, 1, Q("127.121259 mm")))
sketch1.addConstraint(Sketcher.Constraint("DistanceX", 24, 3, -1, 1, Q("129.334803 mm")))
sketch1.addConstraint(Sketcher.Constraint("DistanceX", 26, 3, -1, 1, Q("100.665197 mm")))
sketch1.addConstraint(Sketcher.Constraint("DistanceX", 37, 3, -1, 1, Q("23.312978 mm")))
pad1 = body.newObject("PartDesign::Pad", "Pad")
pad1.Profile = sketch1
pad1.Length = 3.8

# Sketch on XY plane
sketch2 = body.newObject("Sketcher::SketchObject", "Sketch001")
sketch2.AttachmentSupport = (doc.getObject("XY_Plane"), [""])
sketch2.MapMode = "FlatFace"
sketch2.AttachmentOffset = App.Placement(Vector(0, 0, 3.8), App.Rotation())
sketch2.addGeometry(Part.Circle(Vector(-127.121259, 25.5, 0), Vector(0, 0, 1), 2.75), False)
sketch2.addGeometry(Part.Circle(Vector(-127.121259, -25.5, 0), Vector(0, 0, 1), 2.75), False)
sketch2.addGeometry(Part.Circle(Vector(127.121259, -25.5, 0), Vector(0, 0, 1), 2.75), False)
sketch2.addGeometry(Part.Circle(Vector(127.121259, 25.5, 0), Vector(0, 0, 1), 2.75), False)
sketch2.addConstraint(Sketcher.Constraint("Equal", 0, 1))
sketch2.addConstraint(Sketcher.Constraint("Equal", 1, 2))
sketch2.addConstraint(Sketcher.Constraint("Equal", 2, 3))
sketch2.addConstraint(Sketcher.Constraint("Symmetric", 0, 3, 2, 3, -1, 1))
sketch2.addConstraint(Sketcher.Constraint("Symmetric", 1, 3, 3, 3, -1, 1))
sketch2.addConstraint(Sketcher.Constraint("Symmetric", 1, 3, 2, 3, -2))
sketch2.addConstraint(Sketcher.Constraint("Diameter", 0, Q("5.5 mm")))
sketch2.addConstraint(Sketcher.Constraint("DistanceY", 1, 3, 0, 3, Q("51 mm")))
sketch2.addConstraint(Sketcher.Constraint("DistanceX", 0, 3, -1, 1, Q("127.121259 mm")))
doc.recompute()
hole = body.newObject("PartDesign::Hole", "Hole")
hole.Profile = sketch2
hole.ThreadType = "None"
hole.Diameter = 5.5
hole.DepthType = "ThroughAll"
hole.HoleCutType = "Countersink"
hole.HoleCutDiameter = 5.55
hole.HoleCutCountersinkAngle = 90

# Sketch on XY plane
sketch3 = body.newObject("Sketcher::SketchObject", "Sketch002")
sketch3.AttachmentSupport = (doc.getObject("XY_Plane"), [""])
sketch3.MapMode = "FlatFace"
sketch3.addGeometry(Part.Circle(Vector(0.021137, 0, 0), Vector(0, 0, 1), 13.987723), False)
sketch3.addConstraint(Sketcher.Constraint("PointOnObject", 0, 3, -1))
sketch3.addConstraint(Sketcher.Constraint("Diameter", 0, Q("27.975445 mm")))
sketch3.addConstraint(Sketcher.Constraint("DistanceX", -1, 1, 0, 3, Q("0.021137 mm")))
pad2 = body.newObject("PartDesign::Pad", "Pad001")
pad2.Profile = sketch3
pad2.Length = 0.2
pad2.Reversed = True

doc.recompute()
